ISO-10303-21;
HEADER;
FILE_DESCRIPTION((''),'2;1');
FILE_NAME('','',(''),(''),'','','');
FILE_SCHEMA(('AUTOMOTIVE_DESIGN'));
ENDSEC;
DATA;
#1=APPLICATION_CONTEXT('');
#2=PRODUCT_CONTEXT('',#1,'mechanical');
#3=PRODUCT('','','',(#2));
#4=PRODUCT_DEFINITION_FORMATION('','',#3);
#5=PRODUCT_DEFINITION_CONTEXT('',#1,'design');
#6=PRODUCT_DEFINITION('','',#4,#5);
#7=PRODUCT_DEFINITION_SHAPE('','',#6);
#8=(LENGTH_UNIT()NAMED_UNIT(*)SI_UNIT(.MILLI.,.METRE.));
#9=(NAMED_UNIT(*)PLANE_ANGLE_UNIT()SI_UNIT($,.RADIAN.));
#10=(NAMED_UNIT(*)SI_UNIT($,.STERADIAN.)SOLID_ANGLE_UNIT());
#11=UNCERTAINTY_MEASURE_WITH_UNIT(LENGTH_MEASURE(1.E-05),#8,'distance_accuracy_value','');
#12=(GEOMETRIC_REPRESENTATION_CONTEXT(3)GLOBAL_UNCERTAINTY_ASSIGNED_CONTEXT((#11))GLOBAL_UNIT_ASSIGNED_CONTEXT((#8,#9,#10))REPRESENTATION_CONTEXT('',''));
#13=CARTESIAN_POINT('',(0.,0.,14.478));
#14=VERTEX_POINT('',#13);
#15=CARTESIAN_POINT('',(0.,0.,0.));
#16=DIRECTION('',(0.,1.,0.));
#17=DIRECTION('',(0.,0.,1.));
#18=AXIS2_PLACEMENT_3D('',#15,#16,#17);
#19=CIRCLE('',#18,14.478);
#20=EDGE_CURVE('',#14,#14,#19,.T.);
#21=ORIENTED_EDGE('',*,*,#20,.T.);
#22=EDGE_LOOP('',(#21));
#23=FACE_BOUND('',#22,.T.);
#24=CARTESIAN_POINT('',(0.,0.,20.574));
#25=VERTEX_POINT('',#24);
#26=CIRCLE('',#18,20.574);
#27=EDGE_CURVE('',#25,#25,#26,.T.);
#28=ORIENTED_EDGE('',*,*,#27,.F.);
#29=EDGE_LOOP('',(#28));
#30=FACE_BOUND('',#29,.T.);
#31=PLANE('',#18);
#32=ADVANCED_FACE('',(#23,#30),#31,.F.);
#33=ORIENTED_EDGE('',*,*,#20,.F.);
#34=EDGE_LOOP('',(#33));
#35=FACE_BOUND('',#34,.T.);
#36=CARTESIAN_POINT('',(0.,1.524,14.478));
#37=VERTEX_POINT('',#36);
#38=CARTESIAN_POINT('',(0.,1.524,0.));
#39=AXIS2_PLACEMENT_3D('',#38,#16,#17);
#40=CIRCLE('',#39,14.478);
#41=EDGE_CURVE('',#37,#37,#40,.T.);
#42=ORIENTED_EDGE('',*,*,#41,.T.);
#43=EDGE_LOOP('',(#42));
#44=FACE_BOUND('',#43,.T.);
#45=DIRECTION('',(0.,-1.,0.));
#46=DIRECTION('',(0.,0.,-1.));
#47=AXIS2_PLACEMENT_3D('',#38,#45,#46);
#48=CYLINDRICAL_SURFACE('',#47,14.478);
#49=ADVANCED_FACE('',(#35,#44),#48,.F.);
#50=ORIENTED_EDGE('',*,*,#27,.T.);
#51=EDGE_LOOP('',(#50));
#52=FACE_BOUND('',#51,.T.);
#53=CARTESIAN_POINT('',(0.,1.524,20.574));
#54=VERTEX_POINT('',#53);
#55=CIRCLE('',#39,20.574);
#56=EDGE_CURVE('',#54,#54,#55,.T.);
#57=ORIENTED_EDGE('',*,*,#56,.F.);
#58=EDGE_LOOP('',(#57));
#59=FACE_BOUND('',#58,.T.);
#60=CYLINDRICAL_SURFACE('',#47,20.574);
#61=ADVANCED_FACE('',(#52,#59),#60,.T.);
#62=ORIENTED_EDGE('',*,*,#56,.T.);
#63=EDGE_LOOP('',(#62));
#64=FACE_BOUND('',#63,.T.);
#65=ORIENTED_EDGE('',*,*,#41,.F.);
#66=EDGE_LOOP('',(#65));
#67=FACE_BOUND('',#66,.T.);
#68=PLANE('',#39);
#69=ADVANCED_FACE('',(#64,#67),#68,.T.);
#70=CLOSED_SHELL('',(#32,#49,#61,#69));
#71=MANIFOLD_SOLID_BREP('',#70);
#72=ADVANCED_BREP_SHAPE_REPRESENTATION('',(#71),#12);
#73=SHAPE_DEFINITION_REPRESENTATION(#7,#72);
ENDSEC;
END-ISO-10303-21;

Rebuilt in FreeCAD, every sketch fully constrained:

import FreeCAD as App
import Part
import Sketcher

V = App.Vector
Q = App.Units.Quantity

doc = App.newDocument("Part")
body = doc.addObject("PartDesign::Body", "Body")

sketch1 = doc.addObject("Sketcher::SketchObject", "Sketch")
body.addObject(sketch1)
sketch1.AttachmentSupport = (doc.XZ_Plane, [""])
sketch1.MapMode = "FlatFace"
sketch1.addGeometry([
    Part.Circle(V(0, 0, 0), V(0, 0, 1), 21),
    Part.Circle(V(0, 0, 0), V(0, 0, 1), 14),
], False)
sketch1.addConstraint([
    Sketcher.Constraint("Coincident", 0, 3, -1, 1),
    Sketcher.Constraint("Coincident", 1, 3, -1, 1),
    Sketcher.Constraint("Diameter", 0, Q("1.62 in")),
    Sketcher.Constraint("Diameter", 1, Q("1.14 in")),
])
pad1 = doc.addObject("PartDesign::Pad", "Pad")
body.addObject(pad1)
pad1.Profile = sketch1
pad1.Length = Q("0.06 in")
pad1.Reversed = True

doc.recompute()
